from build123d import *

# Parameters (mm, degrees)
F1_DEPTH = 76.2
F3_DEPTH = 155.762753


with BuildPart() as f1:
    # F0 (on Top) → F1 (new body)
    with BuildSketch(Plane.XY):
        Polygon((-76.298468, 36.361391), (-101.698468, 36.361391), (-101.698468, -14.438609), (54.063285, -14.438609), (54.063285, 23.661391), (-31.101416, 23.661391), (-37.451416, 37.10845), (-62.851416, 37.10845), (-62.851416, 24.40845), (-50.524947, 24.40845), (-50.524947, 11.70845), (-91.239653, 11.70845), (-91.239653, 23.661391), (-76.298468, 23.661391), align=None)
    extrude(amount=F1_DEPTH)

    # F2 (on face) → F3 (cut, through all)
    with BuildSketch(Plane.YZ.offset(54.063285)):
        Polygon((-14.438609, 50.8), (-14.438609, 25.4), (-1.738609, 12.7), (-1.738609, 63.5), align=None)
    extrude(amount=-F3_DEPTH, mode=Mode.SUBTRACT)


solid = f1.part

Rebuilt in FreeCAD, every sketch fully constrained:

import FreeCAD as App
import Part
import Sketcher
Q = App.Units.Quantity

doc = App.newDocument("Part")
body = doc.addObject("PartDesign::Body", "Body")

# Sketch on XY plane
sketch1 = doc.addObject("Sketcher::SketchObject", "Sketch")
body.addObject(sketch1)
sketch1.AttachmentSupport = (doc.XY_Plane, [""])
sketch1.MapMode = "FlatFace"
sketch1.addGeometry([
    Part.LineSegment(App.Vector(-76.298468, 36.361391, 0), App.Vector(-101.698468, 36.361391, 0)),  # 0
    Part.LineSegment(App.Vector(-101.698468, 36.361391, 0), App.Vector(-101.698468, -14.438609, 0)),  # 1
    Part.LineSegment(App.Vector(-101.698468, -14.438609, 0), App.Vector(54.063285, -14.438609, 0)),  # 2
    Part.LineSegment(App.Vector(54.063285, -14.438609, 0), App.Vector(54.063285, 23.661391, 0)),  # 3
    Part.LineSegment(App.Vector(54.063285, 23.661391, 0), App.Vector(-31.101416, 23.661391, 0)),  # 4
    Part.LineSegment(App.Vector(-31.101416, 23.661391, 0), App.Vector(-37.451416, 37.10845, 0)),  # 5
    Part.LineSegment(App.Vector(-37.451416, 37.10845, 0), App.Vector(-62.851416, 37.10845, 0)),  # 6
    Part.LineSegment(App.Vector(-62.851416, 37.10845, 0), App.Vector(-62.851416, 24.40845, 0)),  # 7
    Part.LineSegment(App.Vector(-62.851416, 24.40845, 0), App.Vector(-50.524947, 24.40845, 0)),  # 8
    Part.LineSegment(App.Vector(-50.524947, 24.40845, 0), App.Vector(-50.524947, 11.70845, 0)),  # 9
    Part.LineSegment(App.Vector(-50.524947, 11.70845, 0), App.Vector(-91.239653, 11.70845, 0)),  # 10
    Part.LineSegment(App.Vector(-91.239653, 11.70845, 0), App.Vector(-91.239653, 23.661391, 0)),  # 11
    Part.LineSegment(App.Vector(-91.239653, 23.661391, 0), App.Vector(-76.298468, 23.661391, 0)),  # 12
    Part.LineSegment(App.Vector(-76.298468, 23.661391, 0), App.Vector(-76.298468, 36.361391, 0)),  # 13
], False)
sketch1.addConstraint([
    Sketcher.Constraint("Coincident", 0, 2, 1, 1),
    Sketcher.Constraint("Coincident", 1, 2, 2, 1),
    Sketcher.Constraint("Coincident", 2, 2, 3, 1),
    Sketcher.Constraint("Coincident", 3, 2, 4, 1),
    Sketcher.Constraint("Coincident", 4, 2, 5, 1),
    Sketcher.Constraint("Coincident", 5, 2, 6, 1),
    Sketcher.Constraint("Coincident", 6, 2, 7, 1),
    Sketcher.Constraint("Coincident", 7, 2, 8, 1),
    Sketcher.Constraint("Coincident", 8, 2, 9, 1),
    Sketcher.Constraint("Coincident", 9, 2, 10, 1),
    Sketcher.Constraint("Coincident", 10, 2, 11, 1),
    Sketcher.Constraint("Coincident", 11, 2, 12, 1),
    Sketcher.Constraint("Coincident", 12, 2, 13, 1),
    Sketcher.Constraint("Coincident", 13, 2, 0, 1),
    Sketcher.Constraint("Horizontal", 0),
    Sketcher.Constraint("Vertical", 1),
    Sketcher.Constraint("Horizontal", 2),
    Sketcher.Constraint("Vertical", 3),
    Sketcher.Constraint("Horizontal", 4),
    Sketcher.Constraint("Horizontal", 6),
    Sketcher.Constraint("Vertical", 7),
    Sketcher.Constraint("Horizontal", 8),
    Sketcher.Constraint("Vertical", 9),
    Sketcher.Constraint("Horizontal", 10),
    Sketcher.Constraint("Vertical", 11),
    Sketcher.Constraint("Horizontal", 12),
    Sketcher.Constraint("Vertical", 13),
    Sketcher.Constraint("Horizontal", 4, 2, 11, 2),
    Sketcher.Constraint("Equal", 0, 6),
    Sketcher.Constraint("Equal", 7, 9),
    Sketcher.Constraint("Equal", 9, 13),
    Sketcher.Constraint("DistanceX", 0, 2, 0, 1, Q("1 in")),
    Sketcher.Constraint("DistanceY", 1, 2, 1, 1, Q("2 in")),
    Sketcher.Constraint("DistanceY", 3, 1, 3, 2, Q("1.5 in")),
    Sketcher.Constraint("DistanceX", 5, 2, 4, 2, Q("0.25 in")),
    Sketcher.Constraint("DistanceX", 4, 2, 4, 1, 85.164701),
    Sketcher.Constraint("DistanceX", 8, 1, 8, 2, 12.326469),
    Sketcher.Constraint("DistanceY", 11, 1, 11, 2, 11.952941),
    Sketcher.Constraint("DistanceX", 2, 1, 2, 2, 155.761753),
    Sketcher.Constraint("DistanceX", 10, 2, 10, 1, 40.714706),
    Sketcher.Constraint("DistanceX", 0, 2, -1, 1, 101.698468),
    Sketcher.Constraint("DistanceY", -1, 1, 0, 2, 36.361391),
])
pad1 = doc.addObject("PartDesign::Pad", "Pad")
body.addObject(pad1)
pad1.Profile = sketch1
pad1.Length = Q("3 in")

# Sketch on YZ plane
sketch2 = doc.addObject("Sketcher::SketchObject", "Sketch001")
body.addObject(sketch2)
sketch2.AttachmentSupport = (doc.YZ_Plane, [""])
sketch2.MapMode = "FlatFace"
sketch2.AttachmentOffset = App.Placement(App.Vector(0, 0, 54.063285), App.Rotation())
sketch2.addGeometry([
    Part.LineSegment(App.Vector(-14.438609, 50.8, 0), App.Vector(-14.438609, 25.4, 0)),
    Part.LineSegment(App.Vector(-14.438609, 25.4, 0), App.Vector(-1.738609, 12.7, 0)),
    Part.LineSegment(App.Vector(-1.738609, 12.7, 0), App.Vector(-1.738609, 63.5, 0)),
    Part.LineSegment(App.Vector(-1.738609, 63.5, 0), App.Vector(-14.438609, 50.8, 0)),
], False)
sketch2.addConstraint([
    Sketcher.Constraint("Coincident", 0, 2, 1, 1),
    Sketcher.Constraint("Coincident", 1, 2, 2, 1),
    Sketcher.Constraint("Coincident", 2, 2, 3, 1),
    Sketcher.Constraint("Coincident", 3, 2, 0, 1),
    Sketcher.Constraint("Vertical", 0),
    Sketcher.Constraint("Vertical", 2),
    Sketcher.Constraint("Perpendicular", 1, 3),
    Sketcher.Constraint("Equal", 1, 3),
    Sketcher.Constraint("DistanceY", 0, 2, 0, 1, Q("1 in")),
    Sketcher.Constraint("DistanceY", 2, 1, 2, 2, Q("2 in")),
    Sketcher.Constraint("DistanceY", -1, 1, 0, 2, Q("1 in")),
    Sketcher.Constraint("DistanceX", 0, 2, -1, 1, 14.438609),
])
pocket1 = doc.addObject("PartDesign::Pocket", "Pocket")
body.addObject(pocket1)
pocket1.Profile = sketch2
pocket1.Type = "ThroughAll"

doc.recompute()
